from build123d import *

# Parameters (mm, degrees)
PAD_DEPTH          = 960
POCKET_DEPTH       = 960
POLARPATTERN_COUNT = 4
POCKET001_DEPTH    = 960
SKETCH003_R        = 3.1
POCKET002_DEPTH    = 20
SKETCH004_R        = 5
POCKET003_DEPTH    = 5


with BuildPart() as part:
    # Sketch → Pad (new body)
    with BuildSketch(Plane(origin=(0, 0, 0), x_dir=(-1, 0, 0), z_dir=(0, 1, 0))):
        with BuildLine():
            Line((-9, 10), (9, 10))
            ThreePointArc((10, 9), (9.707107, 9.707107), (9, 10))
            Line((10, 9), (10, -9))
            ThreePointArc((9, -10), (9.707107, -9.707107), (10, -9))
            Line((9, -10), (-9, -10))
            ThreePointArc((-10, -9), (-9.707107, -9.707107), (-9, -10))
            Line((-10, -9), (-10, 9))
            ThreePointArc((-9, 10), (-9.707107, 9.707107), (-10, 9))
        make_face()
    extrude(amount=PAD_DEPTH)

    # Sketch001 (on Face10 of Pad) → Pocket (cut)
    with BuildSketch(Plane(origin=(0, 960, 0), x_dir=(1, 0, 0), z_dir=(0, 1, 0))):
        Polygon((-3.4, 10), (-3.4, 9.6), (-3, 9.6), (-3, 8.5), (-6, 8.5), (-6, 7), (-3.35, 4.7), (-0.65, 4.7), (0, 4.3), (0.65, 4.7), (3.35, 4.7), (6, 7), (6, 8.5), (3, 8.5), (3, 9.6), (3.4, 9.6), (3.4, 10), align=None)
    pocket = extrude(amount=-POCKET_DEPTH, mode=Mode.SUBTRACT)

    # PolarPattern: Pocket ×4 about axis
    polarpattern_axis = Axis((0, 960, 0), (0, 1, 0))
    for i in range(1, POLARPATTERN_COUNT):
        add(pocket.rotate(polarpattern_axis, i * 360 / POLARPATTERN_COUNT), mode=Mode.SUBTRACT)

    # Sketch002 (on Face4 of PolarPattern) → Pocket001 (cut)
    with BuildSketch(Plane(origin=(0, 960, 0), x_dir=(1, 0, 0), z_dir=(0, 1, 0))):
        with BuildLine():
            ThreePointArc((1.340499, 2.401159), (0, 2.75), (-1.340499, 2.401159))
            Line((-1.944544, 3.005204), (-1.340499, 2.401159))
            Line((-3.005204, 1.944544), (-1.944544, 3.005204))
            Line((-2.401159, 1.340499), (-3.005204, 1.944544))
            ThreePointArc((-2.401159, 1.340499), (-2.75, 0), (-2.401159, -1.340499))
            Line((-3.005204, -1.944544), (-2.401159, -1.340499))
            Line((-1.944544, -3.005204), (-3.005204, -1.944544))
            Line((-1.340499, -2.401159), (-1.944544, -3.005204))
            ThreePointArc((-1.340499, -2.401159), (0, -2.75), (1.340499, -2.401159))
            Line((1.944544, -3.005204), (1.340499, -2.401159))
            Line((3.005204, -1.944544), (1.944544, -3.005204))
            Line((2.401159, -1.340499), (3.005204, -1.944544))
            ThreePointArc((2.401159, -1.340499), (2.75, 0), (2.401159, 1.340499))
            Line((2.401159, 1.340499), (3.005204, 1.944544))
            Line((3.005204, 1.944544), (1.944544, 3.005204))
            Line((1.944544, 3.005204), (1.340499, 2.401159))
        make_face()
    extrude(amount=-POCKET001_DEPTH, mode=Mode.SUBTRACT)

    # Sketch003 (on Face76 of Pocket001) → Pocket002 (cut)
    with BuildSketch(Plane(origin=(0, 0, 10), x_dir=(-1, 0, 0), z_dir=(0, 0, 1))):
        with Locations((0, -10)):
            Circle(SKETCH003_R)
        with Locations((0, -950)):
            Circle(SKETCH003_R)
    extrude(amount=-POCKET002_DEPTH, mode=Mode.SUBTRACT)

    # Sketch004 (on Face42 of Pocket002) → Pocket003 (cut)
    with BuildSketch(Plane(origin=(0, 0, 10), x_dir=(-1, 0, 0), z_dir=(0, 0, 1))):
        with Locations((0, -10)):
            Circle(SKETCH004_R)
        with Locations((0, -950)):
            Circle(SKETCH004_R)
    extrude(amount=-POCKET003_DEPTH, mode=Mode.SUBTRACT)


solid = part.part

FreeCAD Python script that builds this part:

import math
import FreeCAD as App
import Part
import Sketcher
from FreeCAD import Vector

doc = App.newDocument("Part")
body = doc.addObject("PartDesign::Body", "Body")

sketch1 = body.newObject("Sketcher::SketchObject", "Sketch")
sketch1.AttachmentSupport = (doc.getObject("XZ_Plane"), [""])
sketch1.MapMode = "FlatFace"
sketch1.addGeometry(Part.LineSegment(Vector(-9, 10, 0), Vector(9, 10, 0)), False)
sketch1.addGeometry(Part.ArcOfCircle(Part.Circle(Vector(9, 9, 0), Vector(0, 0, 1), 1), math.radians(0), math.radians(90)), False)
sketch1.addGeometry(Part.LineSegment(Vector(10, 9, 0), Vector(10, -9, 0)), False)
sketch1.addGeometry(Part.ArcOfCircle(Part.Circle(Vector(9, -9, 0), Vector(0, 0, 1), 1), math.radians(-90), math.radians(0)), False)
sketch1.addGeometry(Part.LineSegment(Vector(9, -10, 0), Vector(-9, -10, 0)), False)
sketch1.addGeometry(Part.ArcOfCircle(Part.Circle(Vector(-9, -9, 0), Vector(0, 0, 1), 1), math.radians(180), math.radians(270)), False)
sketch1.addGeometry(Part.LineSegment(Vector(-10, -9, 0), Vector(-10, 9, 0)), False)
sketch1.addGeometry(Part.ArcOfCircle(Part.Circle(Vector(-9, 9, 0), Vector(0, 0, 1), 1), math.radians(90), math.radians(180)), False)
sketch1.addConstraint(Sketcher.Constraint("Tangent", 0, 2, 1, 2))
sketch1.addConstraint(Sketcher.Constraint("Tangent", 1, 1, 2, 1))
sketch1.addConstraint(Sketcher.Constraint("Tangent", 2, 2, 3, 2))
sketch1.addConstraint(Sketcher.Constraint("Tangent", 3, 1, 4, 1))
sketch1.addConstraint(Sketcher.Constraint("Tangent", 4, 2, 5, 2))
sketch1.addConstraint(Sketcher.Constraint("Tangent", 5, 1, 6, 1))
sketch1.addConstraint(Sketcher.Constraint("Tangent", 6, 2, 7, 2))
sketch1.addConstraint(Sketcher.Constraint("Tangent", 7, 1, 0, 1))
sketch1.addConstraint(Sketcher.Constraint("Horizontal", 0))
sketch1.addConstraint(Sketcher.Constraint("Vertical", 2))
sketch1.addConstraint(Sketcher.Constraint("Horizontal", 4))
sketch1.addConstraint(Sketcher.Constraint("Vertical", 6))
sketch1.addConstraint(Sketcher.Constraint("Equal", 1, 3))
sketch1.addConstraint(Sketcher.Constraint("Equal", 3, 5))
sketch1.addConstraint(Sketcher.Constraint("Equal", 5, 7))
sketch1.addConstraint(Sketcher.Constraint("Symmetric", 1, 3, 5, 3, -1, 1))
sketch1.addConstraint(Sketcher.Constraint("Equal", 4, 2))
sketch1.addConstraint(Sketcher.Constraint("Radius", 1, 0.999999))
sketch1.addConstraint(Sketcher.Constraint("DistanceX", 0, 1, 0, 2, 18.0))
pad1 = body.newObject("PartDesign::Pad", "Pad")
pad1.Profile = sketch1
pad1.Length = 960
pad1.Reversed = True

sketch2 = body.newObject("Sketcher::SketchObject", "Sketch001")
sketch2.AttachmentSupport = (doc.getObject("XZ_Plane"), [""])
sketch2.MapMode = "FlatFace"
sketch2.AttachmentOffset = App.Placement(Vector(0, 0, -960), App.Rotation())
sketch2.addGeometry(Part.LineSegment(Vector(-3.4, -10, 0), Vector(-3.4, -9.6, 0)), False)
sketch2.addGeometry(Part.LineSegment(Vector(-3.4, -9.6, 0), Vector(-3, -9.6, 0)), False)
sketch2.addGeometry(Part.LineSegment(Vector(-3, -9.6, 0), Vector(-3, -8.5, 0)), False)
sketch2.addGeometry(Part.LineSegment(Vector(-3, -8.5, 0), Vector(-6, -8.5, 0)), False)
sketch2.addGeometry(Part.LineSegment(Vector(-6, -8.5, 0), Vector(-6, -7, 0)), False)
sketch2.addGeometry(Part.LineSegment(Vector(-6, -7, 0), Vector(-3.35, -4.7, 0)), False)
sketch2.addGeometry(Part.LineSegment(Vector(-3.35, -4.7, 0), Vector(-0.65, -4.7, 0)), False)
sketch2.addGeometry(Part.LineSegment(Vector(-0.65, -4.7, 0), Vector(0, -4.3, 0)), False)
sketch2.addGeometry(Part.LineSegment(Vector(0, -4.3, 0), Vector(0.65, -4.7, 0)), False)
sketch2.addGeometry(Part.LineSegment(Vector(0.65, -4.7, 0), Vector(3.35, -4.7, 0)), False)
sketch2.addGeometry(Part.LineSegment(Vector(3.35, -4.7, 0), Vector(6, -7, 0)), False)
sketch2.addGeometry(Part.LineSegment(Vector(6, -7, 0), Vector(6, -8.5, 0)), False)
sketch2.addGeometry(Part.LineSegment(Vector(6, -8.5, 0), Vector(3, -8.5, 0)), False)
sketch2.addGeometry(Part.LineSegment(Vector(3, -8.5, 0), Vector(3, -9.6, 0)), False)
sketch2.addGeometry(Part.LineSegment(Vector(3, -9.6, 0), Vector(3.4, -9.6, 0)), False)
sketch2.addGeometry(Part.LineSegment(Vector(3.4, -9.6, 0), Vector(3.4, -10, 0)), False)
sketch2.addGeometry(Part.LineSegment(Vector(3.4, -10, 0), Vector(-3.4, -10, 0)), False)
sketch2.addConstraint(Sketcher.Constraint("Coincident", 0, 2, 1, 1))
sketch2.addConstraint(Sketcher.Constraint("Coincident", 1, 2, 2, 1))
sketch2.addConstraint(Sketcher.Constraint("Coincident", 2, 2, 3, 1))
sketch2.addConstraint(Sketcher.Constraint("Coincident", 3, 2, 4, 1))
sketch2.addConstraint(Sketcher.Constraint("Coincident", 4, 2, 5, 1))
sketch2.addConstraint(Sketcher.Constraint("Coincident", 5, 2, 6, 1))
sketch2.addConstraint(Sketcher.Constraint("Coincident", 6, 2, 7, 1))
sketch2.addConstraint(Sketcher.Constraint("Coincident", 7, 2, 8, 1))
sketch2.addConstraint(Sketcher.Constraint("Coincident", 8, 2, 9, 1))
sketch2.addConstraint(Sketcher.Constraint("Coincident", 9, 2, 10, 1))
sketch2.addConstraint(Sketcher.Constraint("Coincident", 10, 2, 11, 1))
sketch2.addConstraint(Sketcher.Constraint("Coincident", 11, 2, 12, 1))
sketch2.addConstraint(Sketcher.Constraint("Coincident", 12, 2, 13, 1))
sketch2.addConstraint(Sketcher.Constraint("Coincident", 13, 2, 14, 1))
sketch2.addConstraint(Sketcher.Constraint("Coincident", 14, 2, 15, 1))
sketch2.addConstraint(Sketcher.Constraint("Coincident", 15, 2, 16, 1))
sketch2.addConstraint(Sketcher.Constraint("Coincident", 16, 2, 0, 1))
sketch2.addConstraint(Sketcher.Constraint("Vertical", 0))
sketch2.addConstraint(Sketcher.Constraint("Horizontal", 1))
sketch2.addConstraint(Sketcher.Constraint("Vertical", 2))
sketch2.addConstraint(Sketcher.Constraint("Horizontal", 3))
sketch2.addConstraint(Sketcher.Constraint("Vertical", 4))
sketch2.addConstraint(Sketcher.Constraint("Horizontal", 6))
sketch2.addConstraint(Sketcher.Constraint("Horizontal", 9))
sketch2.addConstraint(Sketcher.Constraint("Vertical", 11))
sketch2.addConstraint(Sketcher.Constraint("Horizontal", 12))
sketch2.addConstraint(Sketcher.Constraint("Vertical", 13))
sketch2.addConstraint(Sketcher.Constraint("Horizontal", 14))
sketch2.addConstraint(Sketcher.Constraint("Vertical", 15))
sketch2.addConstraint(Sketcher.Constraint("Horizontal", 16))
sketch2.addConstraint(Sketcher.Constraint("Symmetric", 6, 2, 8, 2, -2))
sketch2.addConstraint(Sketcher.Constraint("Symmetric", 4, 2, 10, 2, -2))
sketch2.addConstraint(Sketcher.Constraint("Symmetric", 2, 2, 12, 2, -2))
sketch2.addConstraint(Sketcher.Constraint("Symmetric", 0, 2, 14, 2, -2))
sketch2.addConstraint(Sketcher.Constraint("PointOnObject", 7, 2, -2))
sketch2.addConstraint(Sketcher.Constraint("Equal", 6, 9))
sketch2.addConstraint(Sketcher.Constraint("Equal", 14, 0))
sketch2.addConstraint(Sketcher.Constraint("DistanceX", 3, 2, 3, 1, 3.0))
sketch2.addConstraint(Sketcher.Constraint("DistanceX", 1, 1, 1, 2, 0.4))
sketch2.addConstraint(Sketcher.Constraint("DistanceX", 6, 1, 6, 2, 2.7))
sketch2.addConstraint(Sketcher.Constraint("DistanceX", 16, 2, 16, 1, 6.8))
sketch2.addConstraint(Sketcher.Constraint("DistanceY", 2, 1, 2, 2, 1.1))
sketch2.addConstraint(Sketcher.Constraint("DistanceY", 4, 1, 4, 2, 1.5))
sketch2.addConstraint(Sketcher.Constraint("DistanceY", 4, 2, -1, 1, 7.0))
sketch2.addConstraint(Sketcher.Constraint("DistanceX", 5, 2, 8, 2, 4.0))
sketch2.addConstraint(Sketcher.Constraint("DistanceY", 5, 2, -1, 1, 4.7))
sketch2.addConstraint(Sketcher.Constraint("DistanceY", 7, 2, -1, 1, 4.3))
pocket1 = body.newObject("PartDesign::Pocket", "Pocket")
pocket1.Profile = sketch2
pocket1.Length = 960
pocket1.Reversed = True
doc.recompute()

polarpattern = body.newObject("PartDesign::PolarPattern", "PolarPattern")
polarpattern.Originals = [pocket1]
polarpattern.Axis = (doc.getObject("Y_Axis"), [""])
polarpattern.Angle = 360
polarpattern.Occurrences = 4
body.Tip = polarpattern

sketch3 = body.newObject("Sketcher::SketchObject", "Sketch002")
sketch3.AttachmentSupport = (doc.getObject("XZ_Plane"), [""])
sketch3.MapMode = "FlatFace"
sketch3.AttachmentOffset = App.Placement(Vector(0, 0, -960), App.Rotation())
sketch3.addGeometry(Part.ArcOfCircle(Part.Circle(Vector(0, 0, 0), Vector(0, 0, 1), 2.8), math.radians(-119), math.radians(-61)), False)
sketch3.addGeometry(Part.LineSegment(Vector(-1.3, -2.4, 0), Vector(-1.9, -3, 0)), False)
sketch3.addGeometry(Part.LineSegment(Vector(-1.9, -3, 0), Vector(-3, -1.9, 0)), False)
sketch3.addGeometry(Part.LineSegment(Vector(-3, -1.9, 0), Vector(-2.4, -1.3, 0)), False)
sketch3.addGeometry(Part.ArcOfCircle(Part.Circle(Vector(0, 0, 0), Vector(0, 0, 1), 2.8), math.radians(151), math.radians(209)), False)
sketch3.addGeometry(Part.LineSegment(Vector(-2.4, 1.3, 0), Vector(-3, 1.9, 0)), False)
sketch3.addGeometry(Part.LineSegment(Vector(-3, 1.9, 0), Vector(-1.9, 3, 0)), False)
sketch3.addGeometry(Part.LineSegment(Vector(-1.9, 3, 0), Vector(-1.3, 2.4, 0)), False)
sketch3.addGeometry(Part.ArcOfCircle(Part.Circle(Vector(0, 0, 0), Vector(0, 0, 1), 2.8), math.radians(61), math.radians(119)), False)
sketch3.addGeometry(Part.LineSegment(Vector(1.3, 2.4, 0), Vector(1.9, 3, 0)), False)
sketch3.addGeometry(Part.LineSegment(Vector(1.9, 3, 0), Vector(3, 1.9, 0)), False)
sketch3.addGeometry(Part.LineSegment(Vector(3, 1.9, 0), Vector(2.4, 1.3, 0)), False)
sketch3.addGeometry(Part.ArcOfCircle(Part.Circle(Vector(0, 0, 0), Vector(0, 0, 1), 2.8), math.radians(-29), math.radians(29)), False)
sketch3.addGeometry(Part.LineSegment(Vector(2.4, -1.3, 0), Vector(3, -1.9, 0)), False)
sketch3.addGeometry(Part.LineSegment(Vector(3, -1.9, 0), Vector(1.9, -3, 0)), False)
sketch3.addGeometry(Part.LineSegment(Vector(1.9, -3, 0), Vector(1.3, -2.4, 0)), False)
sketch3.addConstraint(Sketcher.Constraint("Coincident", 0, 1, 1, 1))
sketch3.addConstraint(Sketcher.Constraint("Coincident", 1, 2, 2, 1))
sketch3.addConstraint(Sketcher.Constraint("Coincident", 2, 2, 3, 1))
sketch3.addConstraint(Sketcher.Constraint("Coincident", 3, 2, 4, 2))
sketch3.addConstraint(Sketcher.Constraint("Coincident", 4, 1, 5, 1))
sketch3.addConstraint(Sketcher.Constraint("Coincident", 5, 2, 6, 1))
sketch3.addConstraint(Sketcher.Constraint("Coincident", 6, 2, 7, 1))
sketch3.addConstraint(Sketcher.Constraint("Coincident", 7, 2, 8, 2))
sketch3.addConstraint(Sketcher.Constraint("Coincident", 8, 1, 9, 1))
sketch3.addConstraint(Sketcher.Constraint("Coincident", 9, 2, 10, 1))
sketch3.addConstraint(Sketcher.Constraint("Coincident", 10, 2, 11, 1))
sketch3.addConstraint(Sketcher.Constraint("Coincident", 11, 2, 12, 2))
sketch3.addConstraint(Sketcher.Constraint("Coincident", 12, 1, 13, 1))
sketch3.addConstraint(Sketcher.Constraint("Coincident", 13, 2, 14, 1))
sketch3.addConstraint(Sketcher.Constraint("Coincident", 14, 2, 15, 1))
sketch3.addConstraint(Sketcher.Constraint("Coincident", 15, 2, 0, 2))
sketch3.addConstraint(Sketcher.Constraint("Coincident", 0, 3, -1, 1))
sketch3.addConstraint(Sketcher.Constraint("Coincident", 4, 3, -1, 1))
sketch3.addConstraint(Sketcher.Constraint("Coincident", 8, 3, -1, 1))
sketch3.addConstraint(Sketcher.Constraint("Coincident", 12, 3, -1, 1))
sketch3.addConstraint(Sketcher.Constraint("Equal", 0, 4))
sketch3.addConstraint(Sketcher.Constraint("Equal", 4, 8))
sketch3.addConstraint(Sketcher.Constraint("Equal", 8, 12))
sketch3.addConstraint(Sketcher.Constraint("Symmetric", 1, 2, 9, 2, -1, 1))
sketch3.addConstraint(Sketcher.Constraint("Symmetric", 2, 2, 10, 2, -1, 1))
sketch3.addConstraint(Sketcher.Constraint("Symmetric", 5, 2, 13, 2, -1, 1))
sketch3.addConstraint(Sketcher.Constraint("Symmetric", 6, 2, 14, 2, -1, 1))
sketch3.addConstraint(Sketcher.Constraint("Symmetric", 6, 2, 9, 2, -2))
sketch3.addConstraint(Sketcher.Constraint("Symmetric", 5, 2, 10, 2, -2))
sketch3.addConstraint(Sketcher.Constraint("Perpendicular", 1, 2))
sketch3.addConstraint(Sketcher.Constraint("Perpendicular", 2, 3))
sketch3.addConstraint(Sketcher.Constraint("Perpendicular", 3, 5))
sketch3.addConstraint(Sketcher.Constraint("Perpendicular", 5, 6))
sketch3.addConstraint(Sketcher.Constraint("Perpendicular", 6, 7))
sketch3.addConstraint(Sketcher.Constraint("Perpendicular", 7, 9))
sketch3.addConstraint(Sketcher.Constraint("Perpendicular", 10, 11))
sketch3.addConstraint(Sketcher.Constraint("Perpendicular", 11, 13))
sketch3.addConstraint(Sketcher.Constraint("Perpendicular", 14, 15))
sketch3.addConstraint(Sketcher.Constraint("Equal", 1, 3))
sketch3.addConstraint(Sketcher.Constraint("Distance", 2, 1.5))
sketch3.addConstraint(Sketcher.Constraint("Radius", 0, 2.750003))
sketch3.addConstraint(Sketcher.Constraint("DistanceY", 1, 2, 8, 3, 3.005201))
pocket2 = body.newObject("PartDesign::Pocket", "Pocket001")
pocket2.Profile = sketch3
pocket2.Length = 960
pocket2.Reversed = True

sketch4 = body.newObject("Sketcher::SketchObject", "Sketch003")
sketch4.AttachmentSupport = (doc.getObject("XY_Plane"), [""])
sketch4.MapMode = "FlatFace"
sketch4.AttachmentOffset = App.Placement(Vector(0, 0, 10), App.Rotation())
sketch4.addGeometry(Part.Circle(Vector(0, 10, 0), Vector(0, 0, 1), 3.1), False)
sketch4.addGeometry(Part.Circle(Vector(0, 950, 0), Vector(0, 0, 1), 3.1), False)
sketch4.addConstraint(Sketcher.Constraint("Equal", 0, 1))
sketch4.addConstraint(Sketcher.Constraint("PointOnObject", 0, 3, -2))
sketch4.addConstraint(Sketcher.Constraint("PointOnObject", 1, 3, -2))
sketch4.addConstraint(Sketcher.Constraint("Diameter", 0, 6.2))
sketch4.addConstraint(Sketcher.Constraint("DistanceY", -1, 1, 0, 3, 10.0))
sketch4.addConstraint(Sketcher.Constraint("DistanceY", -1, 1, 1, 3, 950.0))
pocket3 = body.newObject("PartDesign::Pocket", "Pocket002")
pocket3.Profile = sketch4
pocket3.Length = 20

sketch5 = body.newObject("Sketcher::SketchObject", "Sketch004")
sketch5.AttachmentSupport = (doc.getObject("XY_Plane"), [""])
sketch5.MapMode = "FlatFace"
sketch5.AttachmentOffset = App.Placement(Vector(0, 0, 10), App.Rotation())
sketch5.addGeometry(Part.Circle(Vector(0, 10, 0), Vector(0, 0, 1), 5), False)
sketch5.addGeometry(Part.Circle(Vector(0, 950, 0), Vector(0, 0, 1), 5), False)
sketch5.addConstraint(Sketcher.Constraint("Equal", 0, 1))
sketch5.addConstraint(Sketcher.Constraint("PointOnObject", 0, 3, -2))
sketch5.addConstraint(Sketcher.Constraint("PointOnObject", 1, 3, -2))
sketch5.addConstraint(Sketcher.Constraint("Diameter", 0, 10.0))
sketch5.addConstraint(Sketcher.Constraint("DistanceY", -1, 1, 0, 3, 10.0))
sketch5.addConstraint(Sketcher.Constraint("DistanceY", -1, 1, 1, 3, 950.0))
pocket4 = body.newObject("PartDesign::Pocket", "Pocket003")
pocket4.Profile = sketch5
pocket4.Length = 5

doc.recompute()
